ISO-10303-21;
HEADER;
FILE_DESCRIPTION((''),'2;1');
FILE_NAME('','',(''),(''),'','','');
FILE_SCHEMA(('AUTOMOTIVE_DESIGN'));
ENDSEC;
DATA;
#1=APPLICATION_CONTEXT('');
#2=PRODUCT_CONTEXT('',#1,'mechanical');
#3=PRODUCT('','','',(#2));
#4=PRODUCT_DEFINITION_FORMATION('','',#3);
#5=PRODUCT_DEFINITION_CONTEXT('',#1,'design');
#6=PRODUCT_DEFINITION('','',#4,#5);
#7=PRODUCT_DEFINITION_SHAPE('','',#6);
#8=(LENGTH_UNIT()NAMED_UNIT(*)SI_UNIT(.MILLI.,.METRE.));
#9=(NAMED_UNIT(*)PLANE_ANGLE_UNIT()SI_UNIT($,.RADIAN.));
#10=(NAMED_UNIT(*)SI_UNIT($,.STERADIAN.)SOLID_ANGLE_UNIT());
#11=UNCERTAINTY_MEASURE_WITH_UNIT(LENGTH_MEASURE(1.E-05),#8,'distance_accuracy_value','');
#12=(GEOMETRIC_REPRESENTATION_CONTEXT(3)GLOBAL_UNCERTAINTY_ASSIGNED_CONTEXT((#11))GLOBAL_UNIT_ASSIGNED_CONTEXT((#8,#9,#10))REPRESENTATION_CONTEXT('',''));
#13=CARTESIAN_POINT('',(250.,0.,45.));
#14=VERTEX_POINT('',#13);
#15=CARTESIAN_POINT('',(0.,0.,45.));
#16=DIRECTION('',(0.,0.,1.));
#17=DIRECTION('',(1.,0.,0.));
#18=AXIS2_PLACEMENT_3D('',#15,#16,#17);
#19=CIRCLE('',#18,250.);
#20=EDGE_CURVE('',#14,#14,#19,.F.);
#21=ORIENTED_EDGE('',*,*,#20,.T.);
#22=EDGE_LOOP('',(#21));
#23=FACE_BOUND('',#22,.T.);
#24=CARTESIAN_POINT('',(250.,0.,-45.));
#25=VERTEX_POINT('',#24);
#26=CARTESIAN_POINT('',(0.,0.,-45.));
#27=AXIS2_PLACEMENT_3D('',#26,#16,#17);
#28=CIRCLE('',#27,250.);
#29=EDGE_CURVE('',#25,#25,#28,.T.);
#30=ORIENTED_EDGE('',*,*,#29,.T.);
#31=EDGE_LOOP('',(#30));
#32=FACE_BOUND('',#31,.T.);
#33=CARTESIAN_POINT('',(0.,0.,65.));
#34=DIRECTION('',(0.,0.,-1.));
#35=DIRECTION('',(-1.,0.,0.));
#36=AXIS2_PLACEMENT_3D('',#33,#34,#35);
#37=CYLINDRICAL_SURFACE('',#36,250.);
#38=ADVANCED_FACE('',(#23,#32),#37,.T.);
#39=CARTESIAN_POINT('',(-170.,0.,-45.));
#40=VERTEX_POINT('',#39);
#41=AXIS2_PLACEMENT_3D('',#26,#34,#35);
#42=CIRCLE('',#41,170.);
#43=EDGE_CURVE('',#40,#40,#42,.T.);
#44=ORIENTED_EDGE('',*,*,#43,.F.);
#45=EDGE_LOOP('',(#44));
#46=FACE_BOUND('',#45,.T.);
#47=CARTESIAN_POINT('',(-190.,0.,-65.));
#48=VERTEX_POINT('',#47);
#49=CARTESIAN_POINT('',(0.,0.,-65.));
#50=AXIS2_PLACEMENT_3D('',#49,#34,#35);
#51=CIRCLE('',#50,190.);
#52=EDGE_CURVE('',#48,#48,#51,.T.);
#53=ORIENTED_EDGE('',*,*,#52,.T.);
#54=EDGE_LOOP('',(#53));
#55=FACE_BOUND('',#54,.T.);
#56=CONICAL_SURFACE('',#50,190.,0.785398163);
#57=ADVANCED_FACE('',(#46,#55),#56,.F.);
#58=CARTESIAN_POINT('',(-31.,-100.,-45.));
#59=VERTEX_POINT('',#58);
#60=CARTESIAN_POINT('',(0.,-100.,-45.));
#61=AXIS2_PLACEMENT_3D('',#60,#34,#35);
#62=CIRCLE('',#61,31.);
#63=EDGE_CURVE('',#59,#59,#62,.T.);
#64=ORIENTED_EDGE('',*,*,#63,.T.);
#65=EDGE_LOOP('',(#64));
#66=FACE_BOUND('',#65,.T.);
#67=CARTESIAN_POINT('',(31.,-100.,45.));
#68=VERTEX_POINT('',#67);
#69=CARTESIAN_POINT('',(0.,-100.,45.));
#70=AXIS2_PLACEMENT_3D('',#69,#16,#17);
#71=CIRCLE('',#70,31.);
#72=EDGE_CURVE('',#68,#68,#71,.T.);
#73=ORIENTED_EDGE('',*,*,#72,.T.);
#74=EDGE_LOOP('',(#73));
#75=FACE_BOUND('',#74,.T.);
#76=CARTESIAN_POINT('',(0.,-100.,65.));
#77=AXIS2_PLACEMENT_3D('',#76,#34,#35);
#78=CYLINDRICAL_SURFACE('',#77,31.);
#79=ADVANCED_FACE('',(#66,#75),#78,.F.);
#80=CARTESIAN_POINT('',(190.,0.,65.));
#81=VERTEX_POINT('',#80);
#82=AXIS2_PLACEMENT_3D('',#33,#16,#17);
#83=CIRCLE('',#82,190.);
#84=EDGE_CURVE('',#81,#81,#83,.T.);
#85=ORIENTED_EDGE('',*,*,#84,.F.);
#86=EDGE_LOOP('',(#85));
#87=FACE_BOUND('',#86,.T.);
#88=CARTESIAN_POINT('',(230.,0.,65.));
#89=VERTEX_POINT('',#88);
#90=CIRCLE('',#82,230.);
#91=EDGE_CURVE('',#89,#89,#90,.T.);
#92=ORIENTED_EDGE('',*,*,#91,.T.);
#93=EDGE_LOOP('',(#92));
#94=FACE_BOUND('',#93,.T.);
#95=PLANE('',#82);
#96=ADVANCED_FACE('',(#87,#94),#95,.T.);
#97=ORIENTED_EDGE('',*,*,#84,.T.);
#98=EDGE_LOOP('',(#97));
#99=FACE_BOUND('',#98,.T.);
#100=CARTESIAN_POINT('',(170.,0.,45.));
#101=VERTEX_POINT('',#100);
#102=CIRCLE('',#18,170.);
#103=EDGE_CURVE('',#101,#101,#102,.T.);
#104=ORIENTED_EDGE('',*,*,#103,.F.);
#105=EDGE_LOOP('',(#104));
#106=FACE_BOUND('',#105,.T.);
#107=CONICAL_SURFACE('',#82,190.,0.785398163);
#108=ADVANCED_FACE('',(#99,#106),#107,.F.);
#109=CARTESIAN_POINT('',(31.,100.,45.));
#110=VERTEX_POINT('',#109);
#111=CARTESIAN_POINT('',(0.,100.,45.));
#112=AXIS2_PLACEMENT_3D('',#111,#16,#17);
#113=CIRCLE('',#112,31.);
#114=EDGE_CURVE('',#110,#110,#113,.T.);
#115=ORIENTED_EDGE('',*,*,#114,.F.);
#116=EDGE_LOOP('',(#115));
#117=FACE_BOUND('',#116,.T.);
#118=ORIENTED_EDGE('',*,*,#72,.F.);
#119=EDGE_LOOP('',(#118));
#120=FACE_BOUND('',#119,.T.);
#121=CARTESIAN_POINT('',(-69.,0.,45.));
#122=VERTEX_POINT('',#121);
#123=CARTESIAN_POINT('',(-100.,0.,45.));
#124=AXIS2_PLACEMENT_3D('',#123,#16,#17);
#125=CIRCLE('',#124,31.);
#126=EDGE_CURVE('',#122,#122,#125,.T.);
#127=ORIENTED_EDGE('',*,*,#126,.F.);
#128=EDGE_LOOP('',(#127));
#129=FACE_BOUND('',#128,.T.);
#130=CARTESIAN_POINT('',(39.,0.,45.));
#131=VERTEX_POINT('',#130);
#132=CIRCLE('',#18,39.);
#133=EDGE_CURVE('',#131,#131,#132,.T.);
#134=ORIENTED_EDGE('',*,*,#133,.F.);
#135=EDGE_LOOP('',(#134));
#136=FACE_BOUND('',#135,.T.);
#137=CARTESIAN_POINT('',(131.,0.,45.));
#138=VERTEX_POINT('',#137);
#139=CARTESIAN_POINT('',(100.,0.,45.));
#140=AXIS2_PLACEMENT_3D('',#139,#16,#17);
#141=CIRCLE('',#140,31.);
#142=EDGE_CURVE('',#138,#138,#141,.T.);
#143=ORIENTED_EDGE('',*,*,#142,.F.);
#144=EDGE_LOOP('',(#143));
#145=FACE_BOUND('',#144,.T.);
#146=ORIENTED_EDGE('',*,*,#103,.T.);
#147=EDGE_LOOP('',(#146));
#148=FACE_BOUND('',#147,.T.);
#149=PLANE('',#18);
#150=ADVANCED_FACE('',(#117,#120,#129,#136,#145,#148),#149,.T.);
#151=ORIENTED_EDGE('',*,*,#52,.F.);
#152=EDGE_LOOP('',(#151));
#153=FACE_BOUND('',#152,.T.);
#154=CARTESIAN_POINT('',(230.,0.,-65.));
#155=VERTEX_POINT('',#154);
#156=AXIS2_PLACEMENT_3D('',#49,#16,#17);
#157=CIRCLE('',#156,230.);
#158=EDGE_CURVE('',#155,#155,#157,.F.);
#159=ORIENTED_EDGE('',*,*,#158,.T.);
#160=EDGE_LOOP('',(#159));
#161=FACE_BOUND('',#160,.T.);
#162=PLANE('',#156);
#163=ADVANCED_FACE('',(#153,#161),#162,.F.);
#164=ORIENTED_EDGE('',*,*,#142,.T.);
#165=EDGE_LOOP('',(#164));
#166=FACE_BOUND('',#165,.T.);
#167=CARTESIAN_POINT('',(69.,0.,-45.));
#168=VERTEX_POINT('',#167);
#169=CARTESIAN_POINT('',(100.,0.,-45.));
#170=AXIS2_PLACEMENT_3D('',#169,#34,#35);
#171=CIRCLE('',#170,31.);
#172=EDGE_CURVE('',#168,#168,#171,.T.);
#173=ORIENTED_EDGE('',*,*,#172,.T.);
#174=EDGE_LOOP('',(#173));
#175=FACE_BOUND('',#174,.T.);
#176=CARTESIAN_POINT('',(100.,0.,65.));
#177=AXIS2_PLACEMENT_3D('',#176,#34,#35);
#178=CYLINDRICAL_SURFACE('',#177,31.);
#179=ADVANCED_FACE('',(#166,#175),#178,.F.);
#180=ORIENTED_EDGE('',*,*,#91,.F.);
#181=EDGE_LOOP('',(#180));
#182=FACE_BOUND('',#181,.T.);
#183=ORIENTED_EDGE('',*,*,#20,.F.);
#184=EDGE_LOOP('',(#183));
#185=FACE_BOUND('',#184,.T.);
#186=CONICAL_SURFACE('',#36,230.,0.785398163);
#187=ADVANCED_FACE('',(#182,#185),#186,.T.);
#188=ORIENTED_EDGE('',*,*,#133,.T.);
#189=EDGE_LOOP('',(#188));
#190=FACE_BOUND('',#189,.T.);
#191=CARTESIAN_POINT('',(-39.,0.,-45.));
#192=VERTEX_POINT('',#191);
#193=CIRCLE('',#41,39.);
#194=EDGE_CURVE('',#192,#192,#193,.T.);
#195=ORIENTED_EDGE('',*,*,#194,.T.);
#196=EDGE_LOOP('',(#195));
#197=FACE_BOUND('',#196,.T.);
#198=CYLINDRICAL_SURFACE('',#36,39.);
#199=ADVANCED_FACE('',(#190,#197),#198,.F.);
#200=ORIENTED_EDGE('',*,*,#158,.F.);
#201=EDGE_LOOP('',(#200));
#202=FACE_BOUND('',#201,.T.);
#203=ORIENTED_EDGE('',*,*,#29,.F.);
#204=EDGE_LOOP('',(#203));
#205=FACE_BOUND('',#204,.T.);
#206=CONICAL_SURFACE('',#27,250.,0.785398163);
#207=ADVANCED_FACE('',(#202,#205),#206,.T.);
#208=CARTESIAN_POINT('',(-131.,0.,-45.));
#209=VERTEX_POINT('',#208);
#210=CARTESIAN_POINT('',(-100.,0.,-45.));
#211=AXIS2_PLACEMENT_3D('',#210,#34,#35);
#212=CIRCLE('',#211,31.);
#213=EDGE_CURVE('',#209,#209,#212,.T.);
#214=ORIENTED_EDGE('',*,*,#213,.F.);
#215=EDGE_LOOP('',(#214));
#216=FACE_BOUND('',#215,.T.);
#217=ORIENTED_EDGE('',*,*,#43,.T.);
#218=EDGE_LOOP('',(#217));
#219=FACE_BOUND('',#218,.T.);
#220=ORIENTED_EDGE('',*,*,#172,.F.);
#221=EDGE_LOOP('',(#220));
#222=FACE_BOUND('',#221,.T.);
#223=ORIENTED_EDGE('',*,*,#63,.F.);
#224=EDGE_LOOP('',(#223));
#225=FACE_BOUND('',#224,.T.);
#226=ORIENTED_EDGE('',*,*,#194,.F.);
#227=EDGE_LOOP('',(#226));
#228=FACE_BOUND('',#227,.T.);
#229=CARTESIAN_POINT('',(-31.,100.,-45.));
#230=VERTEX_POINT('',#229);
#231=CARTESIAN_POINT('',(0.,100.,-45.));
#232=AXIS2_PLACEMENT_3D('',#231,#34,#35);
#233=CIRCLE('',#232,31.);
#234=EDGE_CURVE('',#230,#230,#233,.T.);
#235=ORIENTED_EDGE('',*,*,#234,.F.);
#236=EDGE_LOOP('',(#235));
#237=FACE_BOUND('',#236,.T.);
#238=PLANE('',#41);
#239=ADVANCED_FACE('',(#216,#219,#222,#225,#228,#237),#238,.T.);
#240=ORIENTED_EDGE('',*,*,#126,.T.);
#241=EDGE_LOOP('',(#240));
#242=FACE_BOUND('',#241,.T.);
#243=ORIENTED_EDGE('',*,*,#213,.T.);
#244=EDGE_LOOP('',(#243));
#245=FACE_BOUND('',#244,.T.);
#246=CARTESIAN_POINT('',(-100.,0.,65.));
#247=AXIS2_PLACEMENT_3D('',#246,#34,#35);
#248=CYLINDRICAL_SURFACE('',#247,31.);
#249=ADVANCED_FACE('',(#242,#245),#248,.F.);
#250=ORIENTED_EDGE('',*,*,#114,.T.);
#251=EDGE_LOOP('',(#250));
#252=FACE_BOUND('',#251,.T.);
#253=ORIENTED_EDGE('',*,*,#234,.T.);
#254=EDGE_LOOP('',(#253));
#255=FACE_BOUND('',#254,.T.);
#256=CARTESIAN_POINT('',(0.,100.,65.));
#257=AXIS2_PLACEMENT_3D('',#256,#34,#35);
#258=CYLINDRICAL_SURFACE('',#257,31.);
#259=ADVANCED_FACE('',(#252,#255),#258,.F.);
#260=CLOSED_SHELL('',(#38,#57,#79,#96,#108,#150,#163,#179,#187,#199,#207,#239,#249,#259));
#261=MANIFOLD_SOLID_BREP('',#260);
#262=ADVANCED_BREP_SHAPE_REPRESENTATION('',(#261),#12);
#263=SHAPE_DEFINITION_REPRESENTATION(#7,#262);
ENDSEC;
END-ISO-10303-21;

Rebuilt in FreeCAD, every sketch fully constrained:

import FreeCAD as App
import Part
import Sketcher

V = App.Vector


def edges_at(feature, points):
    """Names of the edges that pass closest to the given points."""
    edges = feature.Shape.Edges
    near = lambda p: min(range(len(edges)), key=lambda i: edges[i].distToShape(Part.Vertex(*p))[0])
    return sorted({f"Edge{near(p) + 1}" for p in points})

doc = App.newDocument("Part")
body = doc.addObject("PartDesign::Body", "Body")

# Sketch on XY plane
sketch1 = body.newObject("Sketcher::SketchObject", "Sketch")
sketch1.AttachmentSupport = (doc.getObject("XY_Plane"), [""])
sketch1.MapMode = "FlatFace"
sketch1.addGeometry(Part.Circle(V(0, 0, 0), V(0, 0, 1), 250), False)
sketch1.addConstraint([
    Sketcher.Constraint("Coincident", 0, 3, -1, 1),
    Sketcher.Constraint("Diameter", 0, 500.0),
])
pad1 = body.newObject("PartDesign::Pad", "Pad")
pad1.Profile = sketch1
pad1.Length = 130
pad1.Midplane = True
doc.recompute()

chamfer = body.newObject("PartDesign::Chamfer", "Chamfer")
chamfer.Base = (pad1, edges_at(pad1, [(-250, 0, -65), (-250, 0, 65)]))
chamfer.Size = 20

# Sketch on XY plane
sketch2 = body.newObject("Sketcher::SketchObject", "Sketch001")
sketch2.AttachmentSupport = (doc.getObject("XY_Plane"), [""])
sketch2.MapMode = "FlatFace"
sketch2.AttachmentOffset = App.Placement(V(0, 0, 65), App.Rotation())
sketch2.addGeometry(Part.Circle(V(0, 0, 0), V(0, 0, 1), 190), False)
sketch2.addConstraint([
    Sketcher.Constraint("Coincident", 0, 3, -1, 1),
    Sketcher.Constraint("Diameter", 0, 380.0),
])
pocket1 = body.newObject("PartDesign::Pocket", "Pocket")
pocket1.Profile = sketch2
pocket1.Length = 20
pocket1.TaperAngle = -45

# Sketch on XY plane
sketch3 = body.newObject("Sketcher::SketchObject", "Sketch002")
sketch3.AttachmentSupport = (doc.getObject("XY_Plane"), [""])
sketch3.MapMode = "FlatFace"
sketch3.AttachmentOffset = App.Placement(V(0, 0, -65), App.Rotation())
sketch3.addGeometry(Part.Circle(V(0, 0, 0), V(0, 0, 1), 190), False)
sketch3.addConstraint([
    Sketcher.Constraint("Coincident", 0, 3, -1, 1),
    Sketcher.Constraint("Diameter", 0, 380.0),
])
pocket2 = body.newObject("PartDesign::Pocket", "Pocket001")
pocket2.Profile = sketch3
pocket2.Length = 20
pocket2.Reversed = True
pocket2.TaperAngle = -45

# Sketch on XY plane
sketch4 = body.newObject("Sketcher::SketchObject", "Sketch003")
sketch4.AttachmentSupport = (doc.getObject("XY_Plane"), [""])
sketch4.MapMode = "FlatFace"
sketch4.AttachmentOffset = App.Placement(V(0, 0, -45), App.Rotation())
sketch4.addGeometry([
    Part.Circle(V(0, 100, 0), V(0, 0, 1), 31),  # 0
    Part.Circle(V(100, 0, 0), V(0, 0, 1), 31),  # 1
    Part.Circle(V(0, -100, 0), V(0, 0, 1), 31),  # 2
    Part.Circle(V(-100, 0, 0), V(0, 0, 1), 31),  # 3
    Part.Circle(V(0, 0, 0), V(0, 0, 1), 39),  # 4
], False)
sketch4.addConstraint([
    Sketcher.Constraint("Coincident", 4, 3, -1, 1),
    Sketcher.Constraint("Equal", 0, 1),
    Sketcher.Constraint("Equal", 1, 2),
    Sketcher.Constraint("Equal", 2, 3),
    Sketcher.Constraint("Symmetric", 0, 3, 2, 3, -1, 1),
    Sketcher.Constraint("Symmetric", 1, 3, 3, 3, -1, 1),
    Sketcher.Constraint("PointOnObject", 0, 3, -2),
    Sketcher.Constraint("PointOnObject", 1, 3, -1),
    Sketcher.Constraint("Diameter", 0, 62.0),
    Sketcher.Constraint("Diameter", 4, 78.0),
    Sketcher.Constraint("DistanceY", -1, 1, 0, 3, 100.0),
    Sketcher.Constraint("DistanceX", -1, 1, 1, 3, 100.0),
])
pocket3 = body.newObject("PartDesign::Pocket", "Pocket002")
pocket3.Profile = sketch4
pocket3.Type = "ThroughAll"
pocket3.Reversed = True

doc.recompute()
